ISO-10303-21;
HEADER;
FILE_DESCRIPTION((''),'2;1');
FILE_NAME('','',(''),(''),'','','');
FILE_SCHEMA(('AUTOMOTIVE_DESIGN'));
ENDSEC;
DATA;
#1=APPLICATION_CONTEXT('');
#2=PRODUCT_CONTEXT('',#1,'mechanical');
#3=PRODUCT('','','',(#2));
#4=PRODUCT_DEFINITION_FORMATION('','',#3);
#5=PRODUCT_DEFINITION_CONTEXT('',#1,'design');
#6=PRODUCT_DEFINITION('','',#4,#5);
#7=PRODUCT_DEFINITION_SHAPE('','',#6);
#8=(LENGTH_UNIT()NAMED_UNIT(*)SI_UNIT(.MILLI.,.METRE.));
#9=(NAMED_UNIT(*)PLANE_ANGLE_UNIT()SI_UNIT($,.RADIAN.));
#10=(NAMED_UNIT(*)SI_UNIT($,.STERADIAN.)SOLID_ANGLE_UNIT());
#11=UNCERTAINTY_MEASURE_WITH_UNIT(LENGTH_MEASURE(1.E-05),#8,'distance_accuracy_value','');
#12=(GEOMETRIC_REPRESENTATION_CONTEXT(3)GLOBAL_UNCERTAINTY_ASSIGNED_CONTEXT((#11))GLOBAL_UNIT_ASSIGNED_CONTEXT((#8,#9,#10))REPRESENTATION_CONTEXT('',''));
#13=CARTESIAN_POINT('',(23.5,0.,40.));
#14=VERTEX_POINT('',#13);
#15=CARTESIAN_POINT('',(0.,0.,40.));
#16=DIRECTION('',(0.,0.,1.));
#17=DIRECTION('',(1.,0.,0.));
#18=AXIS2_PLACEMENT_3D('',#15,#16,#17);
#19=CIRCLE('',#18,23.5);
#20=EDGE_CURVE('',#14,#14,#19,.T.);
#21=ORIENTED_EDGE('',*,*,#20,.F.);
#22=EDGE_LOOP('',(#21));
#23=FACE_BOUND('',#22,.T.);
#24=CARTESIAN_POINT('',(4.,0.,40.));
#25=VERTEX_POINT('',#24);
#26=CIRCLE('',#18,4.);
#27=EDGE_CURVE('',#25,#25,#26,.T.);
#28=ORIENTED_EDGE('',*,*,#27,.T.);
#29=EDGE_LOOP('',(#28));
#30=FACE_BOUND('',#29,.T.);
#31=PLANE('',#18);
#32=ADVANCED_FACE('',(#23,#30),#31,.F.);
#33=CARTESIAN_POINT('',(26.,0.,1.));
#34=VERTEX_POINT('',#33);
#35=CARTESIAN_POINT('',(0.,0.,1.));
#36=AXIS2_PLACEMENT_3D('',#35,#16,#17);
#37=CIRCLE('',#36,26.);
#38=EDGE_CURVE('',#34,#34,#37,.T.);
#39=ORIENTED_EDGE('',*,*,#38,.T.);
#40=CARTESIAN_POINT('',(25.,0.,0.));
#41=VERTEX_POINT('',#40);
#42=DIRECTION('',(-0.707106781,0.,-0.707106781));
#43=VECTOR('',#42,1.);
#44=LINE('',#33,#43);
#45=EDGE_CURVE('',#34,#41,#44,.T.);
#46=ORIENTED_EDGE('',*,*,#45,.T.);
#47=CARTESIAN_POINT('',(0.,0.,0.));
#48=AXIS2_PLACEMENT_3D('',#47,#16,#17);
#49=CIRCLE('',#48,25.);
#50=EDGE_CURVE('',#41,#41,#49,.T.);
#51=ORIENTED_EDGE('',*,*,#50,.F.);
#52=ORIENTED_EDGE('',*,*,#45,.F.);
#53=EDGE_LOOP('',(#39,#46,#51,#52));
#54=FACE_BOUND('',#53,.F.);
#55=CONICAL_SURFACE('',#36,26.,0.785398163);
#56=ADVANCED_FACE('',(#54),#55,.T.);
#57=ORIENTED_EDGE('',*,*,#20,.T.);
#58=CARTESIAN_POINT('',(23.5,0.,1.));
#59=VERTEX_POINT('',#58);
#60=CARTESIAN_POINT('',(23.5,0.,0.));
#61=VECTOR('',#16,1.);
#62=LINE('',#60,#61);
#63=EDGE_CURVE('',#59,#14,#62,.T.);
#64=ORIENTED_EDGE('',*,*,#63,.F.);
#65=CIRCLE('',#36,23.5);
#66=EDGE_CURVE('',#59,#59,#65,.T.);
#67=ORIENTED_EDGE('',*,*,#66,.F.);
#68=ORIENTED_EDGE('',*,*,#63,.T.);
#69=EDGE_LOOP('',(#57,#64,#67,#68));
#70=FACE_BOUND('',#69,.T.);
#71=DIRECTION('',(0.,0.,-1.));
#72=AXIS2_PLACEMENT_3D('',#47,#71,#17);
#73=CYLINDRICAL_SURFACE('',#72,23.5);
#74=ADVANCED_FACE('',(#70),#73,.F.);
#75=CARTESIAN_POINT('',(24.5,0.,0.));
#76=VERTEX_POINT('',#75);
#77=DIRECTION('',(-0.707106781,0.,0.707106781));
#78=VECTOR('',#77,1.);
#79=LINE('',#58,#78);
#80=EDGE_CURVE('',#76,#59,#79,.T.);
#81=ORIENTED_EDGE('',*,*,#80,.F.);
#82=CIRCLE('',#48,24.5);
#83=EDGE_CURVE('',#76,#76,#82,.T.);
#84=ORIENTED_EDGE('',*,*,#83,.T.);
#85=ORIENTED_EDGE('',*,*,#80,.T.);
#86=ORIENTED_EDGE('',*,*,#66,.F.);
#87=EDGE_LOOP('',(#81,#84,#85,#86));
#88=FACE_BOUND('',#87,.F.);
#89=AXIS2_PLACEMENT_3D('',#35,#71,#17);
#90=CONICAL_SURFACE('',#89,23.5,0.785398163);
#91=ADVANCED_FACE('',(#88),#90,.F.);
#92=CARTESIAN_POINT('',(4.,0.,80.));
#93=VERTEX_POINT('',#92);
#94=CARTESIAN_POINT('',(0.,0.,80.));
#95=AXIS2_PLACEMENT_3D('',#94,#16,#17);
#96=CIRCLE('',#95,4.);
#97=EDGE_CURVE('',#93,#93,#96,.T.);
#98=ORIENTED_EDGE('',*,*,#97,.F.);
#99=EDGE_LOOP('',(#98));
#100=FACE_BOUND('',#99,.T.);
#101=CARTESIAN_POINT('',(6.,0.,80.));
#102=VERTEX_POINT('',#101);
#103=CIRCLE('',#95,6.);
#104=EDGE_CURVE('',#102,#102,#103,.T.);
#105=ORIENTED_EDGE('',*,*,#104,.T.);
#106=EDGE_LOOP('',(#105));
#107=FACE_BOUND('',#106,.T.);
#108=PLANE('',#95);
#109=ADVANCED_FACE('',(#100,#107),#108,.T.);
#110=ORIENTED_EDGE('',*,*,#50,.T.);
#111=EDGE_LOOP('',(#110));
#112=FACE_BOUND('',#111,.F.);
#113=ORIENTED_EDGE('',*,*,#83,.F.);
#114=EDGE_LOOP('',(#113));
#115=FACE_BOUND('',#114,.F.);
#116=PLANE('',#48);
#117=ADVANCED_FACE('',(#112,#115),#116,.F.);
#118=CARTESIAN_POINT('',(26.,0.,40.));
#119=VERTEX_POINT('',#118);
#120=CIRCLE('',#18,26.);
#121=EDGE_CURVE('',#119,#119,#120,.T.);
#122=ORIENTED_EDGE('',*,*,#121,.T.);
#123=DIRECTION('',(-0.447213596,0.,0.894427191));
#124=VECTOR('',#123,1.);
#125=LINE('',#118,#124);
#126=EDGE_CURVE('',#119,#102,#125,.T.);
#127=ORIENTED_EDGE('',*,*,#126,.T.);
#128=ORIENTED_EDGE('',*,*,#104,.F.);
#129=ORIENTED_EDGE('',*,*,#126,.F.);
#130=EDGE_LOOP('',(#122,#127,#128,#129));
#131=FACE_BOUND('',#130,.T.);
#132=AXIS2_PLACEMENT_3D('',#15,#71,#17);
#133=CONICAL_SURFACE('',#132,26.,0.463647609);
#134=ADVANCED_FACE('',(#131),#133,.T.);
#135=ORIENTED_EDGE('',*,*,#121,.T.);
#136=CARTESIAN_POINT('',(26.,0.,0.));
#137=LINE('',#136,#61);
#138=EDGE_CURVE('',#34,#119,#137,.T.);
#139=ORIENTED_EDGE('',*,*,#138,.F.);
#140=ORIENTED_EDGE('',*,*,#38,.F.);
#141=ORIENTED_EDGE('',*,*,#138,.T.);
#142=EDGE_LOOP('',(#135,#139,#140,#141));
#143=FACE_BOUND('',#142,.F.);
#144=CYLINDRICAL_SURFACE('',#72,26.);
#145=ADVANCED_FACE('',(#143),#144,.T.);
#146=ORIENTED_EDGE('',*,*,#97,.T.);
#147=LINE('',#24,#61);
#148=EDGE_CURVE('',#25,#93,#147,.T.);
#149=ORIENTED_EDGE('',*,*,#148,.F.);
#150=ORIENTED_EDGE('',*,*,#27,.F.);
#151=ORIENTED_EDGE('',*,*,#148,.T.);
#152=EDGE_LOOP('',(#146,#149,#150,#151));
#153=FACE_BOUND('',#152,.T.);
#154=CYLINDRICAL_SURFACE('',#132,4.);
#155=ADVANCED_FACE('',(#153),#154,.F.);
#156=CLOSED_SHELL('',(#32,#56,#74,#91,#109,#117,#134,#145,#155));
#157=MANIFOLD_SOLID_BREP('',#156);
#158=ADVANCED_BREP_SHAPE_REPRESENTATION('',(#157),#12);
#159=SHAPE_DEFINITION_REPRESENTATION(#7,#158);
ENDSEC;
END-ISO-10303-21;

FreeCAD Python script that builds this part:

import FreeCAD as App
import Part
import Sketcher


def edges_at(feature, points):
    """Names of the edges that pass closest to the given points."""
    edges = feature.Shape.Edges
    near = lambda p: min(range(len(edges)), key=lambda i: edges[i].distToShape(Part.Vertex(*p))[0])
    return sorted({f"Edge{near(p) + 1}" for p in points})


def add_polygon(sketch, points):
    """Adds a closed chain of lines whose ends are joined by coincident constraints."""
    first, n = sketch.GeometryCount, len(points)
    for a, b in zip(points, points[1:] + points[:1]):
        sketch.addGeometry(Part.LineSegment(App.Vector(*a, 0), App.Vector(*b, 0)), False)
    for i in range(n):
        sketch.addConstraint(Sketcher.Constraint("Coincident", first + i, 2, first + (i + 1) % n, 1))

doc = App.newDocument("Part")
body = doc.addObject("PartDesign::Body", "Body")

sketch1 = body.newObject("Sketcher::SketchObject", "Sketch")
sketch1.AttachmentSupport = (doc.getObject("XY_Plane"), [""])
sketch1.MapMode = "FlatFace"
sketch1.AttachmentOffset = App.Placement(App.Vector(0, 0, 40), App.Rotation())
sketch1.addGeometry(Part.Circle(App.Vector(0, 0, 0), App.Vector(0, 0, 1), 4), False)
sketch1.addConstraint(Sketcher.Constraint("Coincident", 0, 3, -1, 1))
sketch1.addConstraint(Sketcher.Constraint("Diameter", 0, 8.0))
pad1 = body.newObject("PartDesign::Pad", "Pad")
pad1.Profile = sketch1
pad1.Length = 40
body2 = doc.addObject("PartDesign::Body", "Body001")

sketch2 = body2.newObject("Sketcher::SketchObject", "Sketch001")
sketch2.AttachmentSupport = (doc.getObject("XY_Plane001"), [""])
sketch2.MapMode = "FlatFace"
sketch2.addGeometry(Part.Circle(App.Vector(0, 0, 0), App.Vector(0, 0, 1), 26), False)
sketch2.addGeometry(Part.Circle(App.Vector(0, 0, 0), App.Vector(0, 0, 1), 23.5), False)
sketch2.addConstraint(Sketcher.Constraint("Coincident", 0, 3, -1, 1))
sketch2.addConstraint(Sketcher.Constraint("Coincident", 1, 3, -1, 1))
sketch2.addConstraint(Sketcher.Constraint("Diameter", 0, 52.0))
sketch2.addConstraint(Sketcher.Constraint("Diameter", 1, 47.0))
pad2 = body2.newObject("PartDesign::Pad", "Pad001")
pad2.Profile = sketch2
pad2.Length = 40
body3 = doc.addObject("PartDesign::Body", "Body002")

sketch3 = body3.newObject("Sketcher::SketchObject", "Sketch002")
sketch3.AttachmentSupport = (doc.getObject("XZ_Plane002"), [""])
sketch3.MapMode = "FlatFace"
add_polygon(sketch3, [(0, 40), (26, 40), (6, 80), (0, 80)])
sketch3.addConstraint(Sketcher.Constraint("Horizontal", 0))
sketch3.addConstraint(Sketcher.Constraint("Horizontal", 2))
sketch3.addConstraint(Sketcher.Constraint("Vertical", 3))
sketch3.addConstraint(Sketcher.Constraint("PointOnObject", 2, 2, -2))
sketch3.addConstraint(Sketcher.Constraint("DistanceX", 0, 1, 0, 2, 26.0))
sketch3.addConstraint(Sketcher.Constraint("DistanceX", 2, 2, 2, 1, 6.0))
sketch3.addConstraint(Sketcher.Constraint("DistanceY", 3, 2, 3, 1, 40.0))
sketch3.addConstraint(Sketcher.Constraint("DistanceY", -1, 1, 0, 2, 40.0))
revolution = body3.newObject("PartDesign::Revolution", "Revolution")
revolution.Profile = sketch3
revolution.ReferenceAxis = (sketch3, ["V_Axis"])
revolution.Angle = 360
doc.recompute()

boolean = body3.newObject("PartDesign::Boolean", "Boolean")
boolean.Type = "Fuse"
boolean.addObjects([body2])
doc.recompute()

boolean2 = body3.newObject("PartDesign::Boolean", "Boolean001")
boolean2.Type = "Cut"
boolean2.addObjects([body])
doc.recompute()

chamfer = body3.newObject("PartDesign::Chamfer", "Chamfer")
chamfer.Base = (boolean2, edges_at(boolean2, [(-26, 0, 0), (-23.5, 0, 0)]))
chamfer.Size = 1

doc.recompute()
